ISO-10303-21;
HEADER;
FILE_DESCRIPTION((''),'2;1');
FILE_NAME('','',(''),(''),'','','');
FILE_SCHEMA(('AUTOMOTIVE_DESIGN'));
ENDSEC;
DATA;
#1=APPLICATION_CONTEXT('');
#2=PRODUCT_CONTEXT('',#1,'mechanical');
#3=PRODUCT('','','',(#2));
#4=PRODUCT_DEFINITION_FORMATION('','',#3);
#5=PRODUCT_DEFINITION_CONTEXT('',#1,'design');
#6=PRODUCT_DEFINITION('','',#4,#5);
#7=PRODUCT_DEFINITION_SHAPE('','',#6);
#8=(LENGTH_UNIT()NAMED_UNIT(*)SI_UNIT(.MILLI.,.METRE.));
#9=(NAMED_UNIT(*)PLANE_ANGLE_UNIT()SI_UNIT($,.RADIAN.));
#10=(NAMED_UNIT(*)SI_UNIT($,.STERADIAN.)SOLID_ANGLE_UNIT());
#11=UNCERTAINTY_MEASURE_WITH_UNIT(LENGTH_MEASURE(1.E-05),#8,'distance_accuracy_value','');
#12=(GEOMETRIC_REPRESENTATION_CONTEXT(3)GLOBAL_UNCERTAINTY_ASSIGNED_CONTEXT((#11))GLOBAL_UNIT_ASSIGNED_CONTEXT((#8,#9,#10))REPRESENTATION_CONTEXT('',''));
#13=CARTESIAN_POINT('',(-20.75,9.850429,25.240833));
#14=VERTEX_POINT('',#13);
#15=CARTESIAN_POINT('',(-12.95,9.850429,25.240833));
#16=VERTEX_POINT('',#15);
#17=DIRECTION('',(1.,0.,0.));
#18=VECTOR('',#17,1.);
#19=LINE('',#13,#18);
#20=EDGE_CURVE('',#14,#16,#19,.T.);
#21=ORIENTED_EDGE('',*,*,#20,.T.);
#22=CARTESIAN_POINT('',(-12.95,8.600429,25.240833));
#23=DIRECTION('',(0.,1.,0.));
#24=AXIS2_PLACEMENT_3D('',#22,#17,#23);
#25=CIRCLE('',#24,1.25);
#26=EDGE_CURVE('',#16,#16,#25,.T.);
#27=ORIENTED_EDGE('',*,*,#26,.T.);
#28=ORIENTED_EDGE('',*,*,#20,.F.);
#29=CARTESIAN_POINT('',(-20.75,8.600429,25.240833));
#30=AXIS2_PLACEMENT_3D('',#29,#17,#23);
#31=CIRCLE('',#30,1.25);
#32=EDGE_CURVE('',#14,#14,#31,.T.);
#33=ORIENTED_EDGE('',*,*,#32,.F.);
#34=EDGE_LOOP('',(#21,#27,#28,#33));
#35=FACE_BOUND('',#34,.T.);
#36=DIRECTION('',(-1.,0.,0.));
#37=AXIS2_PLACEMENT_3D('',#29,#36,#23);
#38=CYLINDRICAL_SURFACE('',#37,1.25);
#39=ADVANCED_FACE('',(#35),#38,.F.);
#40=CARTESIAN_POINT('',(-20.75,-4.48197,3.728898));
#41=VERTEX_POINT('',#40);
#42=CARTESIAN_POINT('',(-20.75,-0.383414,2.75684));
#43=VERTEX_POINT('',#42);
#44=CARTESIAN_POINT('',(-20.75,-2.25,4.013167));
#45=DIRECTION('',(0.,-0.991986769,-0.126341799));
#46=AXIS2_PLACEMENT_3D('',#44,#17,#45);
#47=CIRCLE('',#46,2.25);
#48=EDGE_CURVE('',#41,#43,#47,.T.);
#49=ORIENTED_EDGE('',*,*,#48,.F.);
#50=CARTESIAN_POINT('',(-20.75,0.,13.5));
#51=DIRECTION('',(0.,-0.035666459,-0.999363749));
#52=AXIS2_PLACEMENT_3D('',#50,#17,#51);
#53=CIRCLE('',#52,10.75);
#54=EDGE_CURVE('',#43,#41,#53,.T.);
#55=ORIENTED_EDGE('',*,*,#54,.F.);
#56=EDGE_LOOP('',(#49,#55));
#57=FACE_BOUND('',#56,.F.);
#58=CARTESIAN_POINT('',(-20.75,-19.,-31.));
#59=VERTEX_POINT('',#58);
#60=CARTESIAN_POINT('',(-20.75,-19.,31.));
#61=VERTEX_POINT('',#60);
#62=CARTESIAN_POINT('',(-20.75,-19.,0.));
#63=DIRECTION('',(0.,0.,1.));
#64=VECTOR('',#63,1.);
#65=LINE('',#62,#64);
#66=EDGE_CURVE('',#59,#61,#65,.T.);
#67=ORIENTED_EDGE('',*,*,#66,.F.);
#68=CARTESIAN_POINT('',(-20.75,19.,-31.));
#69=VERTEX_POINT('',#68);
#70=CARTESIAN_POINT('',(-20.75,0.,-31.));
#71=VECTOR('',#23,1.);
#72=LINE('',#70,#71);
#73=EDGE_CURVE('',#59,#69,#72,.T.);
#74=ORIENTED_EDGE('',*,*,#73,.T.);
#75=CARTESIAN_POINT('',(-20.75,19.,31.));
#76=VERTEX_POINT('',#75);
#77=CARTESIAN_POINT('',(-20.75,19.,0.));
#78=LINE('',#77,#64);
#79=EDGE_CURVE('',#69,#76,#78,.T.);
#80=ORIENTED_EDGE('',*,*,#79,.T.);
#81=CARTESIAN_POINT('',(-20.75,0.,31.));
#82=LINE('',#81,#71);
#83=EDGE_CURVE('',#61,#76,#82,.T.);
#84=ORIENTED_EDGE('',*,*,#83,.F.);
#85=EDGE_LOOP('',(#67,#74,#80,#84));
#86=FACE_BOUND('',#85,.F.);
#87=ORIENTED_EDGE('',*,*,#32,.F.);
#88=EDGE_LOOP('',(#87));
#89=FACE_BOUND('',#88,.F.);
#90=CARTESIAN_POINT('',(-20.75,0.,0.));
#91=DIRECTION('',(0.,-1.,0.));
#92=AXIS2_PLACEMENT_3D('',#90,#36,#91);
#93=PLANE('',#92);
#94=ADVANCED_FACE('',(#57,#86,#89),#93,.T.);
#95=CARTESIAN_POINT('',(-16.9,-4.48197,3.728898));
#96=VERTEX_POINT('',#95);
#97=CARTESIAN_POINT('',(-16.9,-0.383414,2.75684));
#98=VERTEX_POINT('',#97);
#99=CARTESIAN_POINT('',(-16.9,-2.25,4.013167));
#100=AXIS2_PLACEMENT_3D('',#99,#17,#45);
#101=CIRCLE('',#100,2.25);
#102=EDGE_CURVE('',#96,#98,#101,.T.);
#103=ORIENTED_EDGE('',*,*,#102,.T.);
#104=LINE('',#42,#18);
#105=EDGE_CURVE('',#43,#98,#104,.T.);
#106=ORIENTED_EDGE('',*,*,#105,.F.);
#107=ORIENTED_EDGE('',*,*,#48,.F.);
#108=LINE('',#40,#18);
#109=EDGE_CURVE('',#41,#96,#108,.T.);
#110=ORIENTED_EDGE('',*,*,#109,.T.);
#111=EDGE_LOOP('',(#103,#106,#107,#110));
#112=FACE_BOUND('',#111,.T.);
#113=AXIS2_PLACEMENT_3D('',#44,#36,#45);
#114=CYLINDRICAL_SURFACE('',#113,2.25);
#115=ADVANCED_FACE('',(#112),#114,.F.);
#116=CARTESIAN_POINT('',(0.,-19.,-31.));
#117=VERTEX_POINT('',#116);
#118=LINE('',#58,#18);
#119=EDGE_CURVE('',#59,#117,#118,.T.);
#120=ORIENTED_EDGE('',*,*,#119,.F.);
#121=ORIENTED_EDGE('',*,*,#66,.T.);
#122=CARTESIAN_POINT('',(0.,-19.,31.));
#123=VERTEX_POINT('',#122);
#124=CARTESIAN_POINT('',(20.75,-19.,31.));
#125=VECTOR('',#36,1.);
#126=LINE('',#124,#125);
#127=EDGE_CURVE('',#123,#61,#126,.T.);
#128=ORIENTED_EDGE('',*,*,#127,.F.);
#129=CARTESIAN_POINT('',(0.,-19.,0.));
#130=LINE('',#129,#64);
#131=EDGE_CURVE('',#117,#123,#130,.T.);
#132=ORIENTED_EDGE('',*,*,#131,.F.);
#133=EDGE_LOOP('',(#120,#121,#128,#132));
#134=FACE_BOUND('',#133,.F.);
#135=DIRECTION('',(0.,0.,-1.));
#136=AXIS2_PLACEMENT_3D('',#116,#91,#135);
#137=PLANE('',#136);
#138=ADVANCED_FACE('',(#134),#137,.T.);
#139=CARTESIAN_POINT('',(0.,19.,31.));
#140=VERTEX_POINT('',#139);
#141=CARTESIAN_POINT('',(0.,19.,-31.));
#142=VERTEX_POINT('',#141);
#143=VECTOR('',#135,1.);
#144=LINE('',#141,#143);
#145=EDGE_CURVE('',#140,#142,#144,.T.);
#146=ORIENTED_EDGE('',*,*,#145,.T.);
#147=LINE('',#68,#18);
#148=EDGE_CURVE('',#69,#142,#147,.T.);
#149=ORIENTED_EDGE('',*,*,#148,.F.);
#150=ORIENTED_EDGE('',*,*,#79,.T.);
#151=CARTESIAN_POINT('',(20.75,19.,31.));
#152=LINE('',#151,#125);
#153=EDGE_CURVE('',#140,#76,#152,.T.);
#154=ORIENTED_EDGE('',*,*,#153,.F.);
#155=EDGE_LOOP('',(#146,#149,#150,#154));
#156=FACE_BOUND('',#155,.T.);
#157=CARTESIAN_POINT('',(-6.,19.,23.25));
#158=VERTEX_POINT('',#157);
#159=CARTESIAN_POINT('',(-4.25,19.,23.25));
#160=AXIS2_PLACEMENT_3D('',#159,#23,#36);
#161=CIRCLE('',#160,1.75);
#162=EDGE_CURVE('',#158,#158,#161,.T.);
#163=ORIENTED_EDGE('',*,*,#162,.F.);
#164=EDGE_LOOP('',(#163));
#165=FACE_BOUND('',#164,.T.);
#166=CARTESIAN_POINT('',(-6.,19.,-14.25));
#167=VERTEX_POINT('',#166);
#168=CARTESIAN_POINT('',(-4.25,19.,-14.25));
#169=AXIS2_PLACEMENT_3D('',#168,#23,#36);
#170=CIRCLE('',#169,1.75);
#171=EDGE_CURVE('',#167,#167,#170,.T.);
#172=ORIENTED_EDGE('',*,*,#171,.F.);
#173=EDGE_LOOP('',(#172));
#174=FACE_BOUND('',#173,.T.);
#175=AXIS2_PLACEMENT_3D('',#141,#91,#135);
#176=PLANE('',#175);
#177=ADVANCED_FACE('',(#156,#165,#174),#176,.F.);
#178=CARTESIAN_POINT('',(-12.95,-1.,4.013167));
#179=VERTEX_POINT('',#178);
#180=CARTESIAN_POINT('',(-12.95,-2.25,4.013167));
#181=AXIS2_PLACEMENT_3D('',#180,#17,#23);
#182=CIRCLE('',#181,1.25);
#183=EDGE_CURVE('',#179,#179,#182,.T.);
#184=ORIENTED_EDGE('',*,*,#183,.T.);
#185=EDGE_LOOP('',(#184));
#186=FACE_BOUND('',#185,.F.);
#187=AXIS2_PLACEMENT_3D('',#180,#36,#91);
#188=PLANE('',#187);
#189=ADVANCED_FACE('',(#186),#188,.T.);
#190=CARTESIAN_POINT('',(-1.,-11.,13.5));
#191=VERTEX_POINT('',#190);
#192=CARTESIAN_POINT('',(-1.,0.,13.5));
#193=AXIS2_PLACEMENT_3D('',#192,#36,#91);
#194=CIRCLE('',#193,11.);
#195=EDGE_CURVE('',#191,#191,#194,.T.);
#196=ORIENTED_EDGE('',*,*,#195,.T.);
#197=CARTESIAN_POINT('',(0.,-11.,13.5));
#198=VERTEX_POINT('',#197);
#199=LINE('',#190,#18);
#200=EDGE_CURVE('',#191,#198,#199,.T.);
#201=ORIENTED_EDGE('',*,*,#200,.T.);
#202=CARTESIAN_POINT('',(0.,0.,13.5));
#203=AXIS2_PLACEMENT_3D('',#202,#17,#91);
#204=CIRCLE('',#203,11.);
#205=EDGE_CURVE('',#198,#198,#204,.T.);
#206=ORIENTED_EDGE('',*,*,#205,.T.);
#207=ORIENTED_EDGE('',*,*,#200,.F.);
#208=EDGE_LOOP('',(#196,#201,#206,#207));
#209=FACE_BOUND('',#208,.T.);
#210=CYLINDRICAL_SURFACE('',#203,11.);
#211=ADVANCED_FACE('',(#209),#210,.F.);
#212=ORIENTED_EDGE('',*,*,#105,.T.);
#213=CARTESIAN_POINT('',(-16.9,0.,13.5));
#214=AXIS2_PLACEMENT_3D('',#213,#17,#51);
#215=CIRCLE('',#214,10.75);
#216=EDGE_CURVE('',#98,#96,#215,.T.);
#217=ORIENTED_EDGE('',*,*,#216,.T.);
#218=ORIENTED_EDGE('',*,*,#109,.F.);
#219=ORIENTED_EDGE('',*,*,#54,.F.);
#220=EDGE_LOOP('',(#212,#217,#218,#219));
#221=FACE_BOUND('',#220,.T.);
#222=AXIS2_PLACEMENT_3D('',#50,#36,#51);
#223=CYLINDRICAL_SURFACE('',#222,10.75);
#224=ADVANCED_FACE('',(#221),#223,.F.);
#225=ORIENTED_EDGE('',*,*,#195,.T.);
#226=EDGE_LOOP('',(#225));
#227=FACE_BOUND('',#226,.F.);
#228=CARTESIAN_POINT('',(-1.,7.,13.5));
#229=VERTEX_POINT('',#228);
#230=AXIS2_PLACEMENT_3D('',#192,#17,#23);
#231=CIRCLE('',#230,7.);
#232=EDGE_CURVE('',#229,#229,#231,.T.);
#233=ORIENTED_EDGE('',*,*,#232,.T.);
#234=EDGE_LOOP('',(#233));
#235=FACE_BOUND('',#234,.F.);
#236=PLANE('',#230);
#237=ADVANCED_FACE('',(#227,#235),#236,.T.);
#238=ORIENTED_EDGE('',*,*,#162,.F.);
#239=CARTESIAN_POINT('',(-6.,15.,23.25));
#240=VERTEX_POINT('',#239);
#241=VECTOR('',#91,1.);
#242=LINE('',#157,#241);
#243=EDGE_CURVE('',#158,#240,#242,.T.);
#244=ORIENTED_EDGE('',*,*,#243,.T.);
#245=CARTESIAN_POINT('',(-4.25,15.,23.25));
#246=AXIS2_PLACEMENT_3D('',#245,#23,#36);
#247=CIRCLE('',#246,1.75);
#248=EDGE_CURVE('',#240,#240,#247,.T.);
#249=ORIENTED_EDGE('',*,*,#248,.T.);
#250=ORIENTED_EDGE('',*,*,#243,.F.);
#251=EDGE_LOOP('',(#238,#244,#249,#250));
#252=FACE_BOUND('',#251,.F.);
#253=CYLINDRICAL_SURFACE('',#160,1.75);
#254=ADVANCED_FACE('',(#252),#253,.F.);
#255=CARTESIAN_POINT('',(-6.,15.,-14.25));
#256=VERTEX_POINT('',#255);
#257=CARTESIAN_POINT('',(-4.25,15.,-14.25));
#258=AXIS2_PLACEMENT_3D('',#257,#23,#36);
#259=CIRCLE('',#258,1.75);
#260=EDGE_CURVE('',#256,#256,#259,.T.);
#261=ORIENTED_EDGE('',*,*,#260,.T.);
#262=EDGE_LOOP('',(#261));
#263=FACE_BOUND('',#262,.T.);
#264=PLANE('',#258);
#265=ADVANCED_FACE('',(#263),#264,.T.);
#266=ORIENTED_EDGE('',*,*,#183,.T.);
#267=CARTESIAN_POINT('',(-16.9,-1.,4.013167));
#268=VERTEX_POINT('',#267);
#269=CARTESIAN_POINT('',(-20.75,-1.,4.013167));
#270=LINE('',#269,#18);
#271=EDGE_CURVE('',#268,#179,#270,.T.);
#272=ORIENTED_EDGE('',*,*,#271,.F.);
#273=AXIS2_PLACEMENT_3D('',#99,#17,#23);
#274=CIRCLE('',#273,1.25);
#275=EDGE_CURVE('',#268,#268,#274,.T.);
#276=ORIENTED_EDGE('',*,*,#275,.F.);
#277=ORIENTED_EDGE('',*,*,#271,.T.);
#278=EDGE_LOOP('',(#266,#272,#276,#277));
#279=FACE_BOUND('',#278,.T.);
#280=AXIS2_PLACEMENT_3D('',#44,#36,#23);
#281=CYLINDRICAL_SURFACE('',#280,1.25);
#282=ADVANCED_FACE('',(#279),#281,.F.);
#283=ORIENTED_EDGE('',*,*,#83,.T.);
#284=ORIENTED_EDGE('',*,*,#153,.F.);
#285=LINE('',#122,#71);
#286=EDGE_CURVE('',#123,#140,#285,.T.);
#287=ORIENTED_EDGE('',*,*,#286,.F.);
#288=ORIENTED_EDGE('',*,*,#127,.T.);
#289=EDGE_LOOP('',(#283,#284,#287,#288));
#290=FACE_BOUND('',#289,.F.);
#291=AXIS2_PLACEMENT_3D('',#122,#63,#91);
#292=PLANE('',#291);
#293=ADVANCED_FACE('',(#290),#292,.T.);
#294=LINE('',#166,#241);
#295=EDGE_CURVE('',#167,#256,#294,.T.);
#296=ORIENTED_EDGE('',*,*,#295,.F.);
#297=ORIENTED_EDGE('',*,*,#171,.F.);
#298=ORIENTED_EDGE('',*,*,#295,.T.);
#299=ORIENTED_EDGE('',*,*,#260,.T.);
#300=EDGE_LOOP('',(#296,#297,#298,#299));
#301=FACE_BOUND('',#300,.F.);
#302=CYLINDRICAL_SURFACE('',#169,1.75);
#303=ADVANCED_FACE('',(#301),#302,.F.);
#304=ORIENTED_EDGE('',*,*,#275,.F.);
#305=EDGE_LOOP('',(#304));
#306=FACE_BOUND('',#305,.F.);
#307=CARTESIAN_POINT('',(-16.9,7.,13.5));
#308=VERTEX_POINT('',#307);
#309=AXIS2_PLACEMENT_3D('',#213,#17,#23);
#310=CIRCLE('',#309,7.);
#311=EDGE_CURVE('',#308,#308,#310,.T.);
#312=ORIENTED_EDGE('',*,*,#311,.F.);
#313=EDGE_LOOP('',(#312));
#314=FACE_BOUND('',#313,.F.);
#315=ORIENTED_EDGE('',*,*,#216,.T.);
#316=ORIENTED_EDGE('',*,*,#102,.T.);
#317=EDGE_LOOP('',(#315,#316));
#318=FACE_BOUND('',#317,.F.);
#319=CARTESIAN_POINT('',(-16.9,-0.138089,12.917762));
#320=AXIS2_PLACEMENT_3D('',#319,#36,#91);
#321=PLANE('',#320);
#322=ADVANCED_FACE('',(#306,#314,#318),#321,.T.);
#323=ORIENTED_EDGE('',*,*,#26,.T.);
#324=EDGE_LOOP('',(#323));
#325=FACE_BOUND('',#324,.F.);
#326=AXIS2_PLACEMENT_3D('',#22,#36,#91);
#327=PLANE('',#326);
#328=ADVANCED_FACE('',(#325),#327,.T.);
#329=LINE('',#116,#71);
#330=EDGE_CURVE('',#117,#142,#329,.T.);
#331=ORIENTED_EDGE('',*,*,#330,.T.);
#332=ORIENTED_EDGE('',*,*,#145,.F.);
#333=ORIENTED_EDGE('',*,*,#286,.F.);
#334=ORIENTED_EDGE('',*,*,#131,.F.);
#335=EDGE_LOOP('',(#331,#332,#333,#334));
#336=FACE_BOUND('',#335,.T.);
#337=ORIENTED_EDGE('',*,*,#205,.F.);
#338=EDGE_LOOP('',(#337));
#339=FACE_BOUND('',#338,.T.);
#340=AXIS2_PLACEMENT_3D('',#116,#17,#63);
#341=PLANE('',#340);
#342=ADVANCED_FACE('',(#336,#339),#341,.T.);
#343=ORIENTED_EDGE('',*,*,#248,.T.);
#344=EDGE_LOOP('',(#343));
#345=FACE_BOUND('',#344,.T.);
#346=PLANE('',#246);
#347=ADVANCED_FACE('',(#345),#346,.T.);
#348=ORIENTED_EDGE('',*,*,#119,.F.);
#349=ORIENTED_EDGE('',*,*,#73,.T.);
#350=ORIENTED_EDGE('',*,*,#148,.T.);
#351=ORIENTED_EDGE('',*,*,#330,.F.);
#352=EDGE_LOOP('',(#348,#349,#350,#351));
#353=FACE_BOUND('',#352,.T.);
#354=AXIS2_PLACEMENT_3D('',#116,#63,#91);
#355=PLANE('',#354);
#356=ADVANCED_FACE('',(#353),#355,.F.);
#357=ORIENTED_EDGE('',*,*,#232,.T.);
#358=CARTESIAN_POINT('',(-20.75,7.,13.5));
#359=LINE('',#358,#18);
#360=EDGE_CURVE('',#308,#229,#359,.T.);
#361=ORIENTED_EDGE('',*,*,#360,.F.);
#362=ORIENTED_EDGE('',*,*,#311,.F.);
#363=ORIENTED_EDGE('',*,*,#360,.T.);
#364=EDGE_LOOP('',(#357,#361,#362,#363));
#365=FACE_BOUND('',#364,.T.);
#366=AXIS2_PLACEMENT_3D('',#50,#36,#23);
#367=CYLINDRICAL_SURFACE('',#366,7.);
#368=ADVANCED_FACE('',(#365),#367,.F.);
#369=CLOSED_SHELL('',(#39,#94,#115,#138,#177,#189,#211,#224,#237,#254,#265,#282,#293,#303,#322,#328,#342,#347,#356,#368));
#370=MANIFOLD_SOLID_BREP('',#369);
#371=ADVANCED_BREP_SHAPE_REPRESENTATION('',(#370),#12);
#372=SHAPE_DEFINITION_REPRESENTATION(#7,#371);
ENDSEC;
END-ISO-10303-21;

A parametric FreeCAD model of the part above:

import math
import FreeCAD as App
import Part
import Sketcher
from FreeCAD import Vector

doc = App.newDocument("Part")
body = doc.addObject("PartDesign::Body", "Body")

# Sketch on YZ plane
sketch1 = body.newObject("Sketcher::SketchObject", "Sketch")
sketch1.AttachmentSupport = (doc.getObject("YZ_Plane"), [""])
sketch1.MapMode = "FlatFace"
sketch1.addGeometry(Part.LineSegment(Vector(-19, 31, 0), Vector(-19, -31, 0)), False)
sketch1.addGeometry(Part.LineSegment(Vector(-19, -31, 0), Vector(19, -31, 0)), False)
sketch1.addGeometry(Part.LineSegment(Vector(19, -31, 0), Vector(19, 31, 0)), False)
sketch1.addGeometry(Part.LineSegment(Vector(19, 31, 0), Vector(-19, 31, 0)), False)
sketch1.addConstraint(Sketcher.Constraint("Coincident", 0, 2, 1, 1))
sketch1.addConstraint(Sketcher.Constraint("Coincident", 1, 2, 2, 1))
sketch1.addConstraint(Sketcher.Constraint("Coincident", 2, 2, 3, 1))
sketch1.addConstraint(Sketcher.Constraint("Coincident", 3, 2, 0, 1))
sketch1.addConstraint(Sketcher.Constraint("Vertical", 0))
sketch1.addConstraint(Sketcher.Constraint("Horizontal", 1))
sketch1.addConstraint(Sketcher.Constraint("Vertical", 2))
sketch1.addConstraint(Sketcher.Constraint("Horizontal", 3))
sketch1.addConstraint(Sketcher.Constraint("Symmetric", 0, 2, 2, 2, -1, 1))
sketch1.addConstraint(Sketcher.Constraint("DistanceX", 1, 1, 1, 2, 38.0))
sketch1.addConstraint(Sketcher.Constraint("DistanceY", 0, 2, 0, 1, 62.0))
pad1 = body.newObject("PartDesign::Pad", "Pad")
pad1.Profile = sketch1
pad1.Length = 20.75

# Sketch on YZ plane
sketch2 = body.newObject("Sketcher::SketchObject", "Sketch001")
sketch2.AttachmentSupport = (doc.getObject("YZ_Plane"), [""])
sketch2.MapMode = "FlatFace"
sketch2.AttachmentOffset = App.Placement(Vector(0, 0, 20.75), App.Rotation())
sketch2.addGeometry(Part.ArcOfCircle(Part.Circle(Vector(-2.25, 4.013167, 0), Vector(0, 0, 1), 2.25), math.radians(-172.74175), math.radians(-33.94298)), False)
sketch2.addGeometry(Part.ArcOfCircle(Part.Circle(Vector(0, 13.5, 0), Vector(0, 0, 1), 10.75), math.radians(-92.043971), math.radians(245.359241)), False)
sketch2.addGeometry(Part.Circle(Vector(-2.25, 4.013167, 0), Vector(0, 0, 1), 1.25), False)
sketch2.addGeometry(Part.Circle(Vector(0, 13.5, 0), Vector(0, 0, 1), 7), False)
sketch2.addConstraint(Sketcher.Constraint("Coincident", 0, 1, 1, 2))
sketch2.addConstraint(Sketcher.Constraint("Coincident", 1, 1, 0, 2))
sketch2.addConstraint(Sketcher.Constraint("Coincident", 2, 3, 0, 3))
sketch2.addConstraint(Sketcher.Constraint("Coincident", 3, 3, 1, 3))
sketch2.addConstraint(Sketcher.Constraint("PointOnObject", 1, 3, -2))
sketch2.addConstraint(Sketcher.Constraint("Diameter", 3, 14.0))
sketch2.addConstraint(Sketcher.Constraint("Diameter", 2, 2.5))
sketch2.addConstraint(Sketcher.Constraint("Radius", 0, 2.25))
sketch2.addConstraint(Sketcher.Constraint("Radius", 1, 10.75))
sketch2.addConstraint(Sketcher.Constraint("DistanceY", -1, 1, 1, 3, 13.5))
sketch2.addConstraint(Sketcher.Constraint("DistanceX", 0, 3, -1, 1, 2.25))
sketch2.addConstraint(Sketcher.Constraint("DistanceY", 0, 1, 1, 3, 9.771102))
pocket1 = body.newObject("PartDesign::Pocket", "Pocket")
pocket1.Profile = sketch2
pocket1.Length = 3.85

# Sketch on YZ plane
sketch3 = body.newObject("Sketcher::SketchObject", "Sketch002")
sketch3.AttachmentSupport = (doc.getObject("YZ_Plane"), [""])
sketch3.MapMode = "FlatFace"
sketch3.AttachmentOffset = App.Placement(Vector(0, 0, 20.75), App.Rotation())
sketch3.addGeometry(Part.Circle(Vector(-2.25, 4.013167, 0), Vector(0, 0, 1), 1.25), False)
sketch3.addGeometry(Part.Circle(Vector(8.600429, 25.240833, 0), Vector(0, 0, 1), 1.25), False)
sketch3.addConstraint(Sketcher.Constraint("Equal", 0, 1))
sketch3.addConstraint(Sketcher.Constraint("Diameter", 0, 2.5))
sketch3.addConstraint(Sketcher.Constraint("DistanceX", 0, 3, -1, 1, 2.25))
sketch3.addConstraint(Sketcher.Constraint("DistanceX", -1, 1, 1, 3, 8.600429))
sketch3.addConstraint(Sketcher.Constraint("DistanceY", -1, 1, 0, 3, 4.013167))
sketch3.addConstraint(Sketcher.Constraint("DistanceY", -1, 1, 1, 3, 25.240833))
pocket2 = body.newObject("PartDesign::Pocket", "Pocket001")
pocket2.Profile = sketch3
pocket2.Length = 7.8

# Sketch on YZ plane
sketch4 = body.newObject("Sketcher::SketchObject", "Sketch003")
sketch4.AttachmentSupport = (doc.getObject("YZ_Plane"), [""])
sketch4.MapMode = "FlatFace"
sketch4.AttachmentOffset = App.Placement(Vector(0, 0, 20.75), App.Rotation())
sketch4.addGeometry(Part.Circle(Vector(0, 13.5, 0), Vector(0, 0, 1), 7), False)
sketch4.addConstraint(Sketcher.Constraint("PointOnObject", 0, 3, -2))
sketch4.addConstraint(Sketcher.Constraint("Diameter", 0, 14.0))
sketch4.addConstraint(Sketcher.Constraint("DistanceY", -1, 1, 0, 3, 13.5))
pocket3 = body.newObject("PartDesign::Pocket", "Pocket002")
pocket3.Profile = sketch4
pocket3.Type = "ThroughAll"

# Sketch on YZ plane
sketch5 = body.newObject("Sketcher::SketchObject", "Sketch004")
sketch5.AttachmentSupport = (doc.getObject("YZ_Plane"), [""])
sketch5.MapMode = "FlatFace"
sketch5.addGeometry(Part.Circle(Vector(0, 13.5, 0), Vector(0, 0, 1), 11), False)
sketch5.addGeometry(Part.Circle(Vector(0, 13.5, 0), Vector(0, 0, 1), 7), False)
sketch5.addConstraint(Sketcher.Constraint("Coincident", 1, 3, 0, 3))
sketch5.addConstraint(Sketcher.Constraint("PointOnObject", 0, 3, -2))
sketch5.addConstraint(Sketcher.Constraint("Diameter", 0, 22.0))
sketch5.addConstraint(Sketcher.Constraint("Diameter", 1, 14.0))
sketch5.addConstraint(Sketcher.Constraint("DistanceY", -1, 1, 0, 3, 13.5))
pocket4 = body.newObject("PartDesign::Pocket", "Pocket003")
pocket4.Profile = sketch5
pocket4.Length = 1
pocket4.Reversed = True
body2 = doc.addObject("PartDesign::Body", "Body001")
doc.recompute()

body2.BaseFeature = body
doc.recompute()

mirroring = doc.addObject("Part::Mirroring", "Mirroring")
mirroring.Source = body
mirroring.Base = Vector(0, 0, 0)
mirroring.Normal = Vector(1, 0, 0)
body3 = doc.addObject("PartDesign::Body", "Body002")
body3.BaseFeature = mirroring
boolean = body2.newObject("PartDesign::Boolean", "Boolean")
boolean.Type = "Fuse"
boolean.addObjects([body3])
doc.recompute()

# Sketch on XZ plane
sketch6 = body2.newObject("Sketcher::SketchObject", "Sketch005")
sketch6.AttachmentSupport = (doc.getObject("XZ_Plane001"), [""])
sketch6.MapMode = "FlatFace"
sketch6.AttachmentOffset = App.Placement(Vector(0, 0, 19), App.Rotation())
sketch6.addGeometry(Part.LineSegment(Vector(0, 31, 0), Vector(0, -31, 0)), False)
sketch6.addGeometry(Part.LineSegment(Vector(0, -31, 0), Vector(20.75, -31, 0)), False)
sketch6.addGeometry(Part.LineSegment(Vector(20.75, -31, 0), Vector(20.75, 31, 0)), False)
sketch6.addGeometry(Part.LineSegment(Vector(20.75, 31, 0), Vector(0, 31, 0)), False)
sketch6.addConstraint(Sketcher.Constraint("Coincident", 0, 2, 1, 1))
sketch6.addConstraint(Sketcher.Constraint("Coincident", 1, 2, 2, 1))
sketch6.addConstraint(Sketcher.Constraint("Coincident", 2, 2, 3, 1))
sketch6.addConstraint(Sketcher.Constraint("Coincident", 3, 2, 0, 1))
sketch6.addConstraint(Sketcher.Constraint("Vertical", 0))
sketch6.addConstraint(Sketcher.Constraint("Horizontal", 1))
sketch6.addConstraint(Sketcher.Constraint("Vertical", 2))
sketch6.addConstraint(Sketcher.Constraint("Horizontal", 3))
sketch6.addConstraint(Sketcher.Constraint("Symmetric", 0, 2, 3, 2, -1, 1))
sketch6.addConstraint(Sketcher.Constraint("DistanceY", 0, 2, 0, 1, 62.0))
sketch6.addConstraint(Sketcher.Constraint("DistanceX", 1, 1, 1, 2, 20.75))
pocket5 = body2.newObject("PartDesign::Pocket", "Pocket004")
pocket5.Profile = sketch6
pocket5.Type = "ThroughAll"

# Sketch on XZ plane
sketch7 = body2.newObject("Sketcher::SketchObject", "Sketch006")
sketch7.AttachmentSupport = (doc.getObject("XZ_Plane001"), [""])
sketch7.MapMode = "FlatFace"
sketch7.AttachmentOffset = App.Placement(Vector(0, 0, -19), App.Rotation())
sketch7.addGeometry(Part.Circle(Vector(-4.25, 23.25, 0), Vector(0, 0, 1), 1.75), False)
sketch7.addGeometry(Part.Circle(Vector(-4.25, -14.25, 0), Vector(0, 0, 1), 1.75), False)
sketch7.addConstraint(Sketcher.Constraint("Equal", 0, 1))
sketch7.addConstraint(Sketcher.Constraint("Vertical", 0, 3, 1, 3))
sketch7.addConstraint(Sketcher.Constraint("Diameter", 0, 3.5))
sketch7.addConstraint(Sketcher.Constraint("DistanceY", 1, 3, 0, 3, 37.5))
sketch7.addConstraint(Sketcher.Constraint("DistanceX", 0, 3, -1, 1, 4.25))
sketch7.addConstraint(Sketcher.Constraint("DistanceY", -1, 1, 0, 3, 23.25))
pocket6 = body2.newObject("PartDesign::Pocket", "Pocket005")
pocket6.Profile = sketch7
pocket6.Length = 4
pocket6.Reversed = True
mirroring.Visibility = False

doc.recompute()
